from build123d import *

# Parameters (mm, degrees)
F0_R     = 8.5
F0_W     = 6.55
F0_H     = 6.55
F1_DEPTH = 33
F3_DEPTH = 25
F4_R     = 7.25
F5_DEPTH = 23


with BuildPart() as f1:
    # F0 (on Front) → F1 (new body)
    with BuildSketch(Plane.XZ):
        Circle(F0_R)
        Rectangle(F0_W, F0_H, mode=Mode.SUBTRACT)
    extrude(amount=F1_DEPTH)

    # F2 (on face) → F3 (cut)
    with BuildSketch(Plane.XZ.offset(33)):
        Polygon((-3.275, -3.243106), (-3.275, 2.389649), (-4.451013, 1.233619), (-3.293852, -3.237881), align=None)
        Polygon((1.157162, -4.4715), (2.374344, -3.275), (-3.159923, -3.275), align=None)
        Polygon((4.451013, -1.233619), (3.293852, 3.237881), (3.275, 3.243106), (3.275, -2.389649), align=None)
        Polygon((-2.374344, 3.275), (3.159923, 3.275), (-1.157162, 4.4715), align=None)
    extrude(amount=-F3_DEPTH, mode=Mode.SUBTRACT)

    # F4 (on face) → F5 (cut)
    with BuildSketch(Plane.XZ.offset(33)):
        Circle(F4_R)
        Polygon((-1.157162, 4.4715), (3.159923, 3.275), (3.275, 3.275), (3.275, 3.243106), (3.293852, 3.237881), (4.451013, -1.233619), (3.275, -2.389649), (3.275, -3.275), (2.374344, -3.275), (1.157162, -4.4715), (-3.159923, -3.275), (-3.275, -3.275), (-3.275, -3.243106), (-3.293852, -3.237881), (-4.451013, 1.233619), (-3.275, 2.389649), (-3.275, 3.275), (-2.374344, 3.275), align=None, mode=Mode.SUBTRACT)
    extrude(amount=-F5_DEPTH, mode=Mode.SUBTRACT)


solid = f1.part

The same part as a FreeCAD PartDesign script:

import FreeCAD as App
import Part
import Sketcher

V = App.Vector
Q = App.Units.Quantity


def add_polygon(sketch, points):
    """Adds a closed chain of lines whose ends are joined by coincident constraints."""
    first, n = sketch.GeometryCount, len(points)
    for a, b in zip(points, points[1:] + points[:1]):
        sketch.addGeometry(Part.LineSegment(App.Vector(*a, 0), App.Vector(*b, 0)), False)
    for i in range(n):
        sketch.addConstraint(Sketcher.Constraint("Coincident", first + i, 2, first + (i + 1) % n, 1))

doc = App.newDocument("Part")
params = doc.addObject("Spreadsheet::Sheet", "Params")
for row, (alias, value) in enumerate([
    ("sketch1_diameter", "17 mm"),
    ("sketch1_width", "6.55 mm"),
    ("pad1_length", "33 mm"),
    ("pocket1_length", "25 mm"),
    ("sketch3_diameter", "14.5 mm"),
    ("pocket2_length", "23 mm"),
], start=1):
    params.set(f"A{row}", alias)
    params.set(f"B{row}", "=" + value)
    params.setAlias(f"B{row}", alias)

body = doc.addObject("PartDesign::Body", "Body")

# Sketch on XZ plane
sketch1 = body.newObject("Sketcher::SketchObject", "Sketch")
sketch1.AttachmentSupport = (doc.getObject("XZ_Plane"), [""])
sketch1.MapMode = "FlatFace"
sketch1.addGeometry(Part.Circle(V(0, 0, 0), V(0, 0, 1), 8.5), False)  # 0
add_polygon(sketch1, [(3.275, -3.275), (-3.275, -3.275), (-3.275, 3.275), (3.275, 3.275)])  # lines 1-4
sketch1.addConstraint([
    Sketcher.Constraint("Horizontal", 1),
    Sketcher.Constraint("Vertical", 2),
    Sketcher.Constraint("Horizontal", 3),
    Sketcher.Constraint("Vertical", 4),
    Sketcher.Constraint("Coincident", 0, 3, -1, 1),
    Sketcher.Constraint("Symmetric", 1, 2, 3, 2, -1, 1),
    Sketcher.Constraint("Equal", 3, 2),
    Sketcher.Constraint("Diameter", 0, Q("17 mm")),
    Sketcher.Constraint("DistanceX", 1, 2, 1, 1, Q("6.55 mm")),
])
sketch1.setExpression("Constraints[11]", "Params.sketch1_diameter")
sketch1.setExpression("Constraints[12]", "Params.sketch1_width")
pad1 = body.newObject("PartDesign::Pad", "Pad")
pad1.Profile = sketch1
pad1.setExpression("Length", "Params.pad1_length")

# Sketch on XZ plane
sketch2 = body.newObject("Sketcher::SketchObject", "Sketch001")
sketch2.AttachmentSupport = (doc.getObject("XZ_Plane"), [""])
sketch2.MapMode = "FlatFace"
sketch2.AttachmentOffset = App.Placement(V(0, 0, 33), App.Rotation())
add_polygon(sketch2, [(-3.275, -3.243106), (-3.275, 2.389649), (-4.451013, 1.233619), (-3.293852, -3.237881)])  # lines 0-3
add_polygon(sketch2, [(1.157162, -4.4715), (2.374344, -3.275), (-3.159923, -3.275)])  # lines 4-6
add_polygon(sketch2, [(4.451013, -1.233619), (3.293852, 3.237881), (3.275, 3.243106), (3.275, -2.389649)])  # lines 7-10
add_polygon(sketch2, [(-2.374344, 3.275), (3.159923, 3.275), (-1.157162, 4.4715)])  # lines 11-13
sketch2.addConstraint([
    Sketcher.Constraint("Vertical", 0),
    Sketcher.Constraint("Horizontal", 5),
    Sketcher.Constraint("Vertical", 9),
    Sketcher.Constraint("Horizontal", 11),
    Sketcher.Constraint("Symmetric", 2, 2, 7, 2, -1, 1),
    Sketcher.Constraint("Symmetric", 3, 2, 8, 2, -1, 1),
    Sketcher.Constraint("Symmetric", 1, 2, 10, 2, -1, 1),
    Sketcher.Constraint("Symmetric", 5, 2, 11, 2, -1, 1),
    Sketcher.Constraint("Symmetric", 6, 2, 12, 2, -1, 1),
    Sketcher.Constraint("Parallel", 1, 4),
    Sketcher.Constraint("Parallel", 4, 10),
    Sketcher.Constraint("Parallel", 10, 13),
    Sketcher.Constraint("DistanceX", 0, 2, 8, 2, Q("6.55 mm")),
    Sketcher.Constraint("DistanceY", 4, 2, -1, 1, Q("3.275 mm")),
    Sketcher.Constraint("DistanceY", 6, 2, -1, 1, Q("4.4715 mm")),
    Sketcher.Constraint("DistanceY", 2, 2, 1, 2, Q("4.4715 mm")),
    Sketcher.Constraint("DistanceX", 5, 2, 5, 1, Q("5.534267 mm")),
    Sketcher.Constraint("DistanceY", 0, 1, 0, 2, Q("5.632755 mm")),
    Sketcher.Constraint("DistanceY", -1, 1, 0, 2, Q("2.389649 mm")),
    Sketcher.Constraint("DistanceY", -1, 1, 1, 2, Q("1.233619 mm")),
    Sketcher.Constraint("DistanceX", 2, 2, -1, 1, Q("3.293852 mm")),
    Sketcher.Constraint("DistanceX", 1, 2, 2, 2, Q("1.157161 mm")),
    Sketcher.Constraint("DistanceX", 2, 2, 5, 2, Q("0.133929 mm")),
])
pocket1 = body.newObject("PartDesign::Pocket", "Pocket")
pocket1.Profile = sketch2
pocket1.setExpression("Length", "Params.pocket1_length")

# Sketch on XZ plane
sketch3 = body.newObject("Sketcher::SketchObject", "Sketch002")
sketch3.AttachmentSupport = (doc.getObject("XZ_Plane"), [""])
sketch3.MapMode = "FlatFace"
sketch3.AttachmentOffset = App.Placement(V(0, 0, 33), App.Rotation())
sketch3.addGeometry(Part.Circle(V(0, 0, 0), V(0, 0, 1), 7.25), False)  # 0
add_polygon(sketch3, [(-2.374344, 3.275), (-1.157162, 4.4715), (3.159923, 3.275), (3.275, 3.275), (3.275, 3.243106), (3.293852, 3.237881), (4.451013, -1.233619), (3.275, -2.389649), (3.275, -3.275), (2.374344, -3.275), (1.157162, -4.4715), (-3.159923, -3.275), (-3.275, -3.275), (-3.275, -3.243106), (-3.293852, -3.237881), (-4.451013, 1.233619), (-3.275, 2.389649), (-3.275, 3.275)])  # lines 1-18
sketch3.addConstraint([
    Sketcher.Constraint("Horizontal", 3),
    Sketcher.Constraint("Vertical", 4),
    Sketcher.Constraint("Vertical", 8),
    Sketcher.Constraint("Horizontal", 9),
    Sketcher.Constraint("Horizontal", 12),
    Sketcher.Constraint("Vertical", 13),
    Sketcher.Constraint("Vertical", 17),
    Sketcher.Constraint("Horizontal", 18),
    Sketcher.Constraint("Coincident", 0, 3, -1, 1),
    Sketcher.Constraint("Symmetric", 1, 2, 10, 2, -1, 1),
    Sketcher.Constraint("Symmetric", 2, 2, 11, 2, -1, 1),
    Sketcher.Constraint("Symmetric", 4, 2, 13, 2, -1, 1),
    Sketcher.Constraint("Symmetric", 5, 2, 14, 2, -1, 1),
    Sketcher.Constraint("Symmetric", 6, 2, 15, 2, -1, 1),
    Sketcher.Constraint("Symmetric", 7, 2, 16, 2, -1, 1),
    Sketcher.Constraint("Symmetric", 9, 2, 18, 2, -1, 1),
    Sketcher.Constraint("Symmetric", 8, 2, 12, 2, -2),
    Sketcher.Constraint("Parallel", 1, 7),
    Sketcher.Constraint("Diameter", 0, Q("14.5 mm")),
    Sketcher.Constraint("DistanceX", 12, 2, 8, 2, Q("6.55 mm")),
    Sketcher.Constraint("DistanceY", -1, 1, 2, 2, Q("3.275 mm")),
    Sketcher.Constraint("DistanceY", 8, 2, 8, 1, Q("0.885351 mm")),
    Sketcher.Constraint("DistanceY", -1, 1, 1, 2, Q("4.4715 mm")),
    Sketcher.Constraint("DistanceY", 6, 2, 5, 2, Q("4.4715 mm")),
    Sketcher.Constraint("DistanceX", 3, 1, 3, 2, Q("0.115077 mm")),
    Sketcher.Constraint("DistanceX", 9, 2, 9, 1, Q("0.900656 mm")),
    Sketcher.Constraint("DistanceY", 4, 2, 4, 1, Q("0.031894 mm")),
    Sketcher.Constraint("DistanceX", -1, 1, 5, 2, Q("3.293852 mm")),
    Sketcher.Constraint("DistanceY", -1, 1, 5, 2, Q("3.237881 mm")),
    Sketcher.Constraint("DistanceX", 5, 2, 6, 2, Q("1.157161 mm")),
])
sketch3.setExpression("Constraints[36]", "Params.sketch3_diameter")
pocket2 = body.newObject("PartDesign::Pocket", "Pocket001")
pocket2.Profile = sketch3
pocket2.setExpression("Length", "Params.pocket2_length")

doc.recompute()
